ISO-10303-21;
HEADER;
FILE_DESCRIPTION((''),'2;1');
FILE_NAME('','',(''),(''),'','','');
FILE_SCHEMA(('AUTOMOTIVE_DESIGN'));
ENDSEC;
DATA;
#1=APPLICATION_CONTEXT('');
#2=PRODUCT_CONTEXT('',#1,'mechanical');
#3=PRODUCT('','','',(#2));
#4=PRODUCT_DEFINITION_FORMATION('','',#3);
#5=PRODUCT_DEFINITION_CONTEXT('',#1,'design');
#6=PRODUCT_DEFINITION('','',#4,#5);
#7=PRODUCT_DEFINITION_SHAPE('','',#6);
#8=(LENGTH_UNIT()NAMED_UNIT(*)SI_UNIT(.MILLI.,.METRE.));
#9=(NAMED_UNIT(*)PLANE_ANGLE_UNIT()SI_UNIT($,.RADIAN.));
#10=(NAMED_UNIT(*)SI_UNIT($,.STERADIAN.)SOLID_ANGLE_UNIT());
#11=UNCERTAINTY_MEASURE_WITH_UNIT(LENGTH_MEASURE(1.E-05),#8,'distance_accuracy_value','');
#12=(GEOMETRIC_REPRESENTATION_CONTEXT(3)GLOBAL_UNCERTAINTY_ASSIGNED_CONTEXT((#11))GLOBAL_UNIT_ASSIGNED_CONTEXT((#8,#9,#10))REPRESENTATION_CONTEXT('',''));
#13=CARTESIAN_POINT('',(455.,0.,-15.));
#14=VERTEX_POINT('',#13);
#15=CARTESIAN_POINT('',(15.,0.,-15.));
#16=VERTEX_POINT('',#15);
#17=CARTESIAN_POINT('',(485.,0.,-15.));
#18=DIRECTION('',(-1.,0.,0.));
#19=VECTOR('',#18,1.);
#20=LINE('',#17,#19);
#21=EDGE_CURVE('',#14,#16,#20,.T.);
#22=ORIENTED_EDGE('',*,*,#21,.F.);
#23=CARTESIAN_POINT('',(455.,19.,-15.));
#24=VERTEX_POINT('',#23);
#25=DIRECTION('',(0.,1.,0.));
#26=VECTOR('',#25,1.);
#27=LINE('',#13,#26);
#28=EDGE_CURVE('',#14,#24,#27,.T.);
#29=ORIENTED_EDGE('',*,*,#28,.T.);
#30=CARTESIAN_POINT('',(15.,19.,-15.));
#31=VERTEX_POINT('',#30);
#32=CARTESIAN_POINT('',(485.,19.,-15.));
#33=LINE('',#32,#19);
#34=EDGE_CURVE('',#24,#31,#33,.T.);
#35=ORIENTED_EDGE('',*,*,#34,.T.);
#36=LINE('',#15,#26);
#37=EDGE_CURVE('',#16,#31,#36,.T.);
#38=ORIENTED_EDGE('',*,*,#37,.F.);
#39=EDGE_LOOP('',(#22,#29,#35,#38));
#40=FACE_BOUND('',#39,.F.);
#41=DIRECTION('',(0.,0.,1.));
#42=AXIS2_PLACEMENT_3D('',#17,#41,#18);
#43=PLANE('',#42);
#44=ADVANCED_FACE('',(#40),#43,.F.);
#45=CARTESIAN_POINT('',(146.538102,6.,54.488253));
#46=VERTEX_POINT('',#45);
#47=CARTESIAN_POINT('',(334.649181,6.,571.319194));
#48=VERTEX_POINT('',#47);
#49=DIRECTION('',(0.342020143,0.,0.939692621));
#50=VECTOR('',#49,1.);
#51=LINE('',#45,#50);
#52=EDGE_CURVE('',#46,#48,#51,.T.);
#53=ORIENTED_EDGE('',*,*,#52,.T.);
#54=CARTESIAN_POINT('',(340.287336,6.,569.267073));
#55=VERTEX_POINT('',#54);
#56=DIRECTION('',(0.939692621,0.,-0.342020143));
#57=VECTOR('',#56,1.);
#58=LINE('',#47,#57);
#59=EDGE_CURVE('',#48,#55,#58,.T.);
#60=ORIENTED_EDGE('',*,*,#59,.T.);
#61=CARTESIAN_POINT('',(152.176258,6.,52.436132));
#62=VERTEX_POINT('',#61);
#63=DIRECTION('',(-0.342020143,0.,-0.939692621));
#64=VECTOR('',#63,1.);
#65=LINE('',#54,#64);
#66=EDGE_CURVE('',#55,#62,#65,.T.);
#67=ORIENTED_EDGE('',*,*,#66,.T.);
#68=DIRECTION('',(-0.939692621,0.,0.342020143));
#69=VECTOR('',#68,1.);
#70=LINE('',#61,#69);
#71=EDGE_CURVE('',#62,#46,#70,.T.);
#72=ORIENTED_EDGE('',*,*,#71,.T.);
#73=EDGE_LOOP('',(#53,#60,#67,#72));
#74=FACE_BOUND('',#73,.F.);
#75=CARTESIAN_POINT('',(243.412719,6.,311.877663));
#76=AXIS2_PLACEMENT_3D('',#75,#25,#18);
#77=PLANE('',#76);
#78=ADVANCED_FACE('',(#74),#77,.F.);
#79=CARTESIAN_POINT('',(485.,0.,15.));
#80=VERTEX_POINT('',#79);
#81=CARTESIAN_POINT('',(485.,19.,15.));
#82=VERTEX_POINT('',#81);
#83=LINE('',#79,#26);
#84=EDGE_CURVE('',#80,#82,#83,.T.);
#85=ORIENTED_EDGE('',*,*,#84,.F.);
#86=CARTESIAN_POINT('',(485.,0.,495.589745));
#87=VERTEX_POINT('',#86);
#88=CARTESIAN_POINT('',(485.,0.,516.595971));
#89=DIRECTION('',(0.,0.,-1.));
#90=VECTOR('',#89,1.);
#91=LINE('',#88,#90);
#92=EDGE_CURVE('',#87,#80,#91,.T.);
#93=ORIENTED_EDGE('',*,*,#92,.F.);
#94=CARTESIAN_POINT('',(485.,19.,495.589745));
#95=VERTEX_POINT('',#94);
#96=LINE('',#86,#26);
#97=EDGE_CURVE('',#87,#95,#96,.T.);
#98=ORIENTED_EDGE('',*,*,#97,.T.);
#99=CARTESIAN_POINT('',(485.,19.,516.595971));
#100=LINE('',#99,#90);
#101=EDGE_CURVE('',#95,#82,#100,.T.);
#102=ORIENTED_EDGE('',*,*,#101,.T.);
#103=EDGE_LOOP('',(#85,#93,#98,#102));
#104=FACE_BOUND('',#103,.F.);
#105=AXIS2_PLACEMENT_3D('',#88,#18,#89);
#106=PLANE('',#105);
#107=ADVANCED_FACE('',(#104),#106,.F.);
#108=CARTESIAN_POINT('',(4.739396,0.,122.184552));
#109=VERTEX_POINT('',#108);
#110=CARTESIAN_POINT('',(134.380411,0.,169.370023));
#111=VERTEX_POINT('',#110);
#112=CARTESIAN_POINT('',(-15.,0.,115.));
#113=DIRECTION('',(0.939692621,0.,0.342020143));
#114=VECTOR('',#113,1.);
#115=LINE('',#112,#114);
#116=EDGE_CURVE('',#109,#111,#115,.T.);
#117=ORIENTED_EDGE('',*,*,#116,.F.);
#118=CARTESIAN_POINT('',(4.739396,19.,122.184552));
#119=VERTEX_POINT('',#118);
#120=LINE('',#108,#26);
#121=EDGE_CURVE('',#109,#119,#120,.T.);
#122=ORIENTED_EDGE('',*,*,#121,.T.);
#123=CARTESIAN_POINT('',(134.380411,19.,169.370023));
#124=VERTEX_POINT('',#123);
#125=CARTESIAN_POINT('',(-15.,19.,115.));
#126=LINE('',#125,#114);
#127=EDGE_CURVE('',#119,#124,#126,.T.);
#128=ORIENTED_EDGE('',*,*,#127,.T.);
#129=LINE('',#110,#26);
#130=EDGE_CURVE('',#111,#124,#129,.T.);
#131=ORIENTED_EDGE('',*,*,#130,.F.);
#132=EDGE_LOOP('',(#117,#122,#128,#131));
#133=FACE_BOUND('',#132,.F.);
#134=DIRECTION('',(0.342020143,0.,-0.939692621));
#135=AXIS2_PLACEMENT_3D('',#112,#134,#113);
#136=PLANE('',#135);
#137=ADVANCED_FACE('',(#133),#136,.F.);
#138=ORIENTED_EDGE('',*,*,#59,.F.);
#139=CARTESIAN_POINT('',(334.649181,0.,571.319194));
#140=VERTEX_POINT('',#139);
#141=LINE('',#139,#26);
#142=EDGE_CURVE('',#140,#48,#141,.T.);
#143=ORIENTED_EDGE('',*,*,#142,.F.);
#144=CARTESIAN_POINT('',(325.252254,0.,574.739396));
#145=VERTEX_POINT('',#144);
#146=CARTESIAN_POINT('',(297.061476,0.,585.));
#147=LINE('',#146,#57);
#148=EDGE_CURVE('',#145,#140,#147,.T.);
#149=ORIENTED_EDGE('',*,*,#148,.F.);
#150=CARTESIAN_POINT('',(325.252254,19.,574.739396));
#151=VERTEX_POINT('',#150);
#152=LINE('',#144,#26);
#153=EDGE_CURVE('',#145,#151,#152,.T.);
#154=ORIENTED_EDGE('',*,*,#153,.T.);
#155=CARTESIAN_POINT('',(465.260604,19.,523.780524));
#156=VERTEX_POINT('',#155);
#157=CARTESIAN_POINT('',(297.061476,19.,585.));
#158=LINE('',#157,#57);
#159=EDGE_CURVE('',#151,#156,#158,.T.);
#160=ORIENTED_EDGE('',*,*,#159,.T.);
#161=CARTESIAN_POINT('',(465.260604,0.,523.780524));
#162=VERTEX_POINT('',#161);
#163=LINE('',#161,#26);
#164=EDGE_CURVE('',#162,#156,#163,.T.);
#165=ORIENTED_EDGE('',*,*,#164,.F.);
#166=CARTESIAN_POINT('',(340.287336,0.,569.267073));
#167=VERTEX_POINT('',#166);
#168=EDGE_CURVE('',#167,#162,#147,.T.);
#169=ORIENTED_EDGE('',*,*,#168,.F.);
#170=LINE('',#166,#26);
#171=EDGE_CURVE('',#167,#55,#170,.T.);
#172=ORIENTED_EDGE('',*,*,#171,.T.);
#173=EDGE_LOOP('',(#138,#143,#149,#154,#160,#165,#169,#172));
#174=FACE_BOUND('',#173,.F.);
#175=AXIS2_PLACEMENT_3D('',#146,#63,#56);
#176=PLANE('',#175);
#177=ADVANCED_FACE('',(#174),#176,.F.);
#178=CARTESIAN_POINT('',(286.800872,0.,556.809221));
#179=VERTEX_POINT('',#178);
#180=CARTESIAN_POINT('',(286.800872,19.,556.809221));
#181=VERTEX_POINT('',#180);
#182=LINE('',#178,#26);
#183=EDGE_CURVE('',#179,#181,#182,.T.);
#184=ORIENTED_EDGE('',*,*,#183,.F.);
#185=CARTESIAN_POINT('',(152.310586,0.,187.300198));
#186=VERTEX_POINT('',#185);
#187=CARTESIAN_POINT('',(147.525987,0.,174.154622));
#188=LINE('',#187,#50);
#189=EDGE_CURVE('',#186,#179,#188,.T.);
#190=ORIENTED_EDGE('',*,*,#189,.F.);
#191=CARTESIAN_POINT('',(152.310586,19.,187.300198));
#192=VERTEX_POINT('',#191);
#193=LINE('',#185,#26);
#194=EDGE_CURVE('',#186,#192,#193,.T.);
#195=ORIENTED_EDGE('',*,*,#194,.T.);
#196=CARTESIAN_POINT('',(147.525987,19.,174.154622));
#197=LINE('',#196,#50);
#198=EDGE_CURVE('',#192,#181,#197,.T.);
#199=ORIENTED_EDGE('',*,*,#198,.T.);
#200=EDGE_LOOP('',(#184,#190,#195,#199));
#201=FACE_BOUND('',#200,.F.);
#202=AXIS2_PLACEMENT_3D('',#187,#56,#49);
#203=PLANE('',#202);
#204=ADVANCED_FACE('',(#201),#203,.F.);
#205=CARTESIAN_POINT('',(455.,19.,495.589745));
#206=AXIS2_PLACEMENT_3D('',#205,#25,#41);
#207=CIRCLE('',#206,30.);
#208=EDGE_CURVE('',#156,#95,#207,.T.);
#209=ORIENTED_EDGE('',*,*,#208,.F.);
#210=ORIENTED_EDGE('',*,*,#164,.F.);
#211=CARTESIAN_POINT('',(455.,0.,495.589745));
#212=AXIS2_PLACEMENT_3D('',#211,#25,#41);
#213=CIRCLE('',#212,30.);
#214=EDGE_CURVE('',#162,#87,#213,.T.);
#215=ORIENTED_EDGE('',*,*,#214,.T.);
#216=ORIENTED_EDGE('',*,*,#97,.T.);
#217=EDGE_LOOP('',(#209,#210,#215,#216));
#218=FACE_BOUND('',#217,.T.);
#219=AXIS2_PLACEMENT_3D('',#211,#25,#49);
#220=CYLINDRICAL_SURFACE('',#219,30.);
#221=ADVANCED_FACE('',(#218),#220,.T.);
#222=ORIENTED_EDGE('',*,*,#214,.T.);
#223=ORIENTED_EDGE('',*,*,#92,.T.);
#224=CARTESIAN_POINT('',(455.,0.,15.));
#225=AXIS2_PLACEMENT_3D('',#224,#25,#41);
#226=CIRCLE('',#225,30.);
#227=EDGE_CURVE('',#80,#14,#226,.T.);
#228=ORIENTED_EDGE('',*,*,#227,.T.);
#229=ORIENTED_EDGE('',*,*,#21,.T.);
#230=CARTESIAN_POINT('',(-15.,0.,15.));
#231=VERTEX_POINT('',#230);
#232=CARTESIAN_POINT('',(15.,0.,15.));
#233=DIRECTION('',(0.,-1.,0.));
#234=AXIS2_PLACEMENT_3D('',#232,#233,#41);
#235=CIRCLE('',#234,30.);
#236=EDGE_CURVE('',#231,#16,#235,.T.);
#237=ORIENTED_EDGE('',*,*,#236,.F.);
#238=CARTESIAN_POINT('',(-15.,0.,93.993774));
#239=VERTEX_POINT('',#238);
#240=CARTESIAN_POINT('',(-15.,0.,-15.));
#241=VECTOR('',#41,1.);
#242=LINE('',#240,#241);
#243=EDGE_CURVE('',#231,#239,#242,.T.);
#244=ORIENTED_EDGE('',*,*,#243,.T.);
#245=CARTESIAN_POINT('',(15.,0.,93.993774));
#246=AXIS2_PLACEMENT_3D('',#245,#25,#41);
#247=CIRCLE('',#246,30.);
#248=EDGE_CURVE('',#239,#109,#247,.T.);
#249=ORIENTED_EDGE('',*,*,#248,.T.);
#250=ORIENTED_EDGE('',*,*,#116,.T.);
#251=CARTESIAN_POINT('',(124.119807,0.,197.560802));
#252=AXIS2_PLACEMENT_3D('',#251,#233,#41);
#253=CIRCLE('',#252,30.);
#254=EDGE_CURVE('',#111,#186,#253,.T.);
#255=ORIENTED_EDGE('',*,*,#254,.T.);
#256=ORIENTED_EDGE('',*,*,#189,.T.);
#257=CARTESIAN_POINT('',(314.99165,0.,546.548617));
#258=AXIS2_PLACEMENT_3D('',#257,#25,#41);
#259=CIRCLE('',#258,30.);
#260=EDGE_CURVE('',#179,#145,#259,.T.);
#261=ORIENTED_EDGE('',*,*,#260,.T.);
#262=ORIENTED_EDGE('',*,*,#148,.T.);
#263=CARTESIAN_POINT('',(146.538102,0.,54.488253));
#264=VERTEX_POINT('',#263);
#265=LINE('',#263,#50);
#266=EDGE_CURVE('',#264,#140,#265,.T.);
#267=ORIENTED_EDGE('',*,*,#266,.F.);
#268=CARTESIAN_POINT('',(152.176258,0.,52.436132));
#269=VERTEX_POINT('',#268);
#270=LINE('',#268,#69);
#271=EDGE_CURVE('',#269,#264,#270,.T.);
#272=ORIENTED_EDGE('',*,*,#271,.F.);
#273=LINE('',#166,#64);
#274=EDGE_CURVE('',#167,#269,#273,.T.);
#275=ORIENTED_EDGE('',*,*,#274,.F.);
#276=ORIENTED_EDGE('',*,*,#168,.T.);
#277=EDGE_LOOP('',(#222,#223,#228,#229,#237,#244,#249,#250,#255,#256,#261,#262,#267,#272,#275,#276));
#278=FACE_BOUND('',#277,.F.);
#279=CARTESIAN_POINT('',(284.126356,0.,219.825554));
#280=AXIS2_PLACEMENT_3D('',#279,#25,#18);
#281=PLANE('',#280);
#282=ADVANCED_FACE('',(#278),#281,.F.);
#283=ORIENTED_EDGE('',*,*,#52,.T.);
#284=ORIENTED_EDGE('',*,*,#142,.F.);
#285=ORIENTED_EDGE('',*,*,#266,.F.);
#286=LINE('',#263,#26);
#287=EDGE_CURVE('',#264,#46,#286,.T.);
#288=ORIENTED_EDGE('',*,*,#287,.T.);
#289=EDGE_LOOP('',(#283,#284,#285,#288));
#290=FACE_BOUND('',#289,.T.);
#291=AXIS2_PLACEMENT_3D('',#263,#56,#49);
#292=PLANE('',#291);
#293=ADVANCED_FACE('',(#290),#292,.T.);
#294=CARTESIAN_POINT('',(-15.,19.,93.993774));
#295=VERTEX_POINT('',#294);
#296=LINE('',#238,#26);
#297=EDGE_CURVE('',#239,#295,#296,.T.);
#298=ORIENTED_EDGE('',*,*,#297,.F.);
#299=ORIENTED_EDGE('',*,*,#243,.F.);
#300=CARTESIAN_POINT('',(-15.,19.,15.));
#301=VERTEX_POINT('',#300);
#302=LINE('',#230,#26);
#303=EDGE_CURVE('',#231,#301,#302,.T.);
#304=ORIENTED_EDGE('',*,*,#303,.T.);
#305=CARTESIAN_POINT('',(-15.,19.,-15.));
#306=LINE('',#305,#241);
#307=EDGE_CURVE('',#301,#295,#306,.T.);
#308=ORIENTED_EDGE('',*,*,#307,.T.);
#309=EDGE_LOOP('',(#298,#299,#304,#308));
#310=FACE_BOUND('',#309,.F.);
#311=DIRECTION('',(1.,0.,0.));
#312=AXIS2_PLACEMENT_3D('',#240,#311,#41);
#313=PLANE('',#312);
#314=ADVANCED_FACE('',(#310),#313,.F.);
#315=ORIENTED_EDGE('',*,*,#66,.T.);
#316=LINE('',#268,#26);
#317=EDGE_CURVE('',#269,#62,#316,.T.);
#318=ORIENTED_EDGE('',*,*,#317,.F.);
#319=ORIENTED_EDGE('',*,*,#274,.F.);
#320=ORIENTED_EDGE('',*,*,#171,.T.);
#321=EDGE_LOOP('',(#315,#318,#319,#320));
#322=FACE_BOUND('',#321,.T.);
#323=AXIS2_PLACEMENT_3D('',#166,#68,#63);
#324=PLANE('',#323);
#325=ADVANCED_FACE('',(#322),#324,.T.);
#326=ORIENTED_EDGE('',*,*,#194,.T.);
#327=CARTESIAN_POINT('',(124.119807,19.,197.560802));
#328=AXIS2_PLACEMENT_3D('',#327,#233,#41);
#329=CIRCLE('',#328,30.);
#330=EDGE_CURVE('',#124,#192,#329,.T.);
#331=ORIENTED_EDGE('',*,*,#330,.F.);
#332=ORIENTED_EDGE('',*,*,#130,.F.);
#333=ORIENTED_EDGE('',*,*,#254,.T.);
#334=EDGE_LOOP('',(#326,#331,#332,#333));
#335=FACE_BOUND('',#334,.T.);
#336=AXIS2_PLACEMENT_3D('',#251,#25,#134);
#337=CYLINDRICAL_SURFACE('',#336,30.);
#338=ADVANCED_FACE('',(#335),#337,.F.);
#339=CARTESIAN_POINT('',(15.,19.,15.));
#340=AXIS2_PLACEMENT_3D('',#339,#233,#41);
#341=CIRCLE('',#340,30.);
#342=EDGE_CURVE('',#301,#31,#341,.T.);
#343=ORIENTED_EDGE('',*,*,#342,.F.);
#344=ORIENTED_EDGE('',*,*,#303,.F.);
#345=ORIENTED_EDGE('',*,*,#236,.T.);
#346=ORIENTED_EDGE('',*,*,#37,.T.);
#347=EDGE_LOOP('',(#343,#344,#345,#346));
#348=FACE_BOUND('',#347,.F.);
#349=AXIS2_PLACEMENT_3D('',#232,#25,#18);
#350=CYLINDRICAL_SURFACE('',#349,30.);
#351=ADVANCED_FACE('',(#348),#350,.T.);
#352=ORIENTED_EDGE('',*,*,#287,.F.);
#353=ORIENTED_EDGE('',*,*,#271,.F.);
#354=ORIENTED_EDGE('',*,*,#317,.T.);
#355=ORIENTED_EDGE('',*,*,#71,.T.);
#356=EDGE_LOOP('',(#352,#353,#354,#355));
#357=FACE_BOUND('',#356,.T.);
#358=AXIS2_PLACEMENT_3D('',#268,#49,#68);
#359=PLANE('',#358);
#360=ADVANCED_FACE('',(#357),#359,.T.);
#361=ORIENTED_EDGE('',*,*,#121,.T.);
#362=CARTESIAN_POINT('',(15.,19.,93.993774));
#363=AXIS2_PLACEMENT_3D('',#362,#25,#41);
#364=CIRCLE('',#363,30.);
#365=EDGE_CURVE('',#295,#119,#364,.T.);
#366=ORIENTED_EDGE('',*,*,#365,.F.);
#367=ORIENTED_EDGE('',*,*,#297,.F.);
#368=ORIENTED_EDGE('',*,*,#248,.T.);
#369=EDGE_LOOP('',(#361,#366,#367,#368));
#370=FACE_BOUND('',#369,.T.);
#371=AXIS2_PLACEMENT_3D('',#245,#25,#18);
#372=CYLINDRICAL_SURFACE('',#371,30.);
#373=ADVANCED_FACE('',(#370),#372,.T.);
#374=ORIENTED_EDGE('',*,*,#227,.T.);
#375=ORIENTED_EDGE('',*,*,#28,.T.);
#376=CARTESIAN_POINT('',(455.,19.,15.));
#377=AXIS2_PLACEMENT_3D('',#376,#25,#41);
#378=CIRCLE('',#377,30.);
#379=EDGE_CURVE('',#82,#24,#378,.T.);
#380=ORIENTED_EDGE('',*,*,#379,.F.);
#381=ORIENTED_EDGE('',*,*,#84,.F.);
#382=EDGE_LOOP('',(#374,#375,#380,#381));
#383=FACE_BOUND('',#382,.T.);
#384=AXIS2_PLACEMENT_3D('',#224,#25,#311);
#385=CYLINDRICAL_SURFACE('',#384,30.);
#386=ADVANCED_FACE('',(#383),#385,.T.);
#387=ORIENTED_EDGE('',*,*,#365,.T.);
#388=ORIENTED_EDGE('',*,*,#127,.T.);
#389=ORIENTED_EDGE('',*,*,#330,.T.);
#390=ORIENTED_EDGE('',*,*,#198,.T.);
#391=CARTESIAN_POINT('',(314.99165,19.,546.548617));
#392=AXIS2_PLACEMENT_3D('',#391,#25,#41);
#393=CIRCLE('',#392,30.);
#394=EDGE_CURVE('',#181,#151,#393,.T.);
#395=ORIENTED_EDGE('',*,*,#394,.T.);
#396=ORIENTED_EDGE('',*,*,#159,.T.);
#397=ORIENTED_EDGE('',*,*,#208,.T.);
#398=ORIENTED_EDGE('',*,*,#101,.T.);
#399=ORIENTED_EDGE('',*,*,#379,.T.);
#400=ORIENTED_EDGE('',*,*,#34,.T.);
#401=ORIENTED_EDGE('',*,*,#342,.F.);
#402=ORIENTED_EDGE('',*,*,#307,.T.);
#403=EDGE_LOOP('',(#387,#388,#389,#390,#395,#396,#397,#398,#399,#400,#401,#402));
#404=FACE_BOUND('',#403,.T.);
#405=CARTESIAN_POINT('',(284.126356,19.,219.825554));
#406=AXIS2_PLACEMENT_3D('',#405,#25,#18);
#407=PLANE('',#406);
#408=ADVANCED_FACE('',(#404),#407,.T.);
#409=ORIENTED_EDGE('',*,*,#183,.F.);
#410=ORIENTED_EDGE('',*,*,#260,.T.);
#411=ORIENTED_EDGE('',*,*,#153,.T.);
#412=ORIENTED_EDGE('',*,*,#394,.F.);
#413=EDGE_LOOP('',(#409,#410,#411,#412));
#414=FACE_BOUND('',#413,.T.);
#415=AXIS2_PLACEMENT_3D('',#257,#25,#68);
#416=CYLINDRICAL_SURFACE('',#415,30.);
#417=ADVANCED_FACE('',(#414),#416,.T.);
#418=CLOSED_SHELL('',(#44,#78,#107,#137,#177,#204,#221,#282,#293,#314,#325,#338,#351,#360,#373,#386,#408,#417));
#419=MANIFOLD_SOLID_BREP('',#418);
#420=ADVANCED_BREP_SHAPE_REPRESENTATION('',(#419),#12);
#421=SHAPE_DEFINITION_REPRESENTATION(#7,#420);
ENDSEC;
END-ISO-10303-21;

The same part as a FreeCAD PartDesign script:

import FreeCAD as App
import Part
import Sketcher

V = App.Vector
Q = App.Units.Quantity


def edges_at(feature, points):
    """Names of the edges that pass closest to the given points."""
    edges = feature.Shape.Edges
    near = lambda p: min(range(len(edges)), key=lambda i: edges[i].distToShape(Part.Vertex(*p))[0])
    return sorted({f"Edge{near(p) + 1}" for p in points})


def add_polygon(sketch, points):
    """Adds a closed chain of lines whose ends are joined by coincident constraints."""
    first, n = sketch.GeometryCount, len(points)
    for a, b in zip(points, points[1:] + points[:1]):
        sketch.addGeometry(Part.LineSegment(App.Vector(*a, 0), App.Vector(*b, 0)), False)
    for i in range(n):
        sketch.addConstraint(Sketcher.Constraint("Coincident", first + i, 2, first + (i + 1) % n, 1))

doc = App.newDocument("Part")
body = doc.addObject("PartDesign::Body", "Body")

# Sketch on XZ plane
sketch1 = body.newObject("Sketcher::SketchObject", "Sketch")
sketch1.AttachmentSupport = (doc.getObject("XZ_Plane"), [""])
sketch1.MapMode = "FlatFace"
add_polygon(sketch1, [(-15, 115), (-15, -15), (485, -15), (485, 517), (297, 585), (148, 174)])  # lines 0-5
sketch1.addConstraint(Sketcher.Constraint("Vertical", 0))
sketch1.addConstraint(Sketcher.Constraint("Horizontal", 1))
sketch1.addConstraint(Sketcher.Constraint("Vertical", 2))
sketch1.addConstraint(Sketcher.Constraint("Perpendicular", 3, 4))
sketch1.addConstraint(Sketcher.Constraint("DistanceX", 1, 1, 1, 2, 500.0))
sketch1.addConstraint(Sketcher.Constraint("DistanceY", 0, 2, 0, 1, 130.0))
sketch1.addConstraint(Sketcher.Constraint("Angle", 3, Q("160 deg")))
sketch1.addConstraint(Sketcher.Constraint("Angle", 5, Q("-160 deg")))
sketch1.addConstraint(Sketcher.Constraint("Distance", 3, 200.0))
sketch1.addConstraint(Sketcher.Constraint("DistanceX", 0, 2, -1, 1, 15.0))
sketch1.addConstraint(Sketcher.Constraint("DistanceY", 0, 2, -1, 1, 15.0))
sketch1.addConstraint(Sketcher.Constraint("DistanceY", -1, 1, 3, 2, 585.0))
pad1 = body.newObject("PartDesign::Pad", "Pad")
pad1.Profile = sketch1
pad1.Length = 19
pad1.Reversed = True
doc.recompute()

fillet = body.newObject("PartDesign::Fillet", "Fillet")
fillet.Base = (pad1, edges_at(pad1, [
    (-15, 9.5, 115),
    (-15, 9.5, -15),
    (297.061, 9.5, 585),
    (485, 9.5, 516.596),
    (485, 9.5, -15),
]))
fillet.Radius = 30
doc.recompute()

fillet2 = body.newObject("PartDesign::Fillet", "Fillet001")
fillet2.Base = (fillet, edges_at(fillet, [(147.526, 9.5, 174.155)]))
fillet2.Radius = 30

# Sketch on XZ plane
sketch2 = body.newObject("Sketcher::SketchObject", "Sketch001")
sketch2.AttachmentSupport = (doc.getObject("XZ_Plane"), [""])
sketch2.MapMode = "FlatFace"
add_polygon(sketch2, [(152, 52), (340, 569), (335, 571), (147, 54)])  # lines 0-3
sketch2.addConstraint(Sketcher.Constraint("Perpendicular", 0, 1))
sketch2.addConstraint(Sketcher.Constraint("Perpendicular", 1, 2))
sketch2.addConstraint(Sketcher.Constraint("Perpendicular", 2, 3))
sketch2.addConstraint(Sketcher.Constraint("Angle", 0, Q("70 deg")))
sketch2.addConstraint(Sketcher.Constraint("Distance", 0, 550.0))
sketch2.addConstraint(Sketcher.Constraint("Distance", 1, 6.0))
sketch2.addConstraint(Sketcher.Constraint("DistanceX", -1, 1, 2, 2, 146.538102))
sketch2.addConstraint(Sketcher.Constraint("DistanceY", -1, 1, 3, 2, 52.436132))
pocket1 = body.newObject("PartDesign::Pocket", "Pocket")
pocket1.Profile = sketch2
pocket1.Length = 6

doc.recompute()
